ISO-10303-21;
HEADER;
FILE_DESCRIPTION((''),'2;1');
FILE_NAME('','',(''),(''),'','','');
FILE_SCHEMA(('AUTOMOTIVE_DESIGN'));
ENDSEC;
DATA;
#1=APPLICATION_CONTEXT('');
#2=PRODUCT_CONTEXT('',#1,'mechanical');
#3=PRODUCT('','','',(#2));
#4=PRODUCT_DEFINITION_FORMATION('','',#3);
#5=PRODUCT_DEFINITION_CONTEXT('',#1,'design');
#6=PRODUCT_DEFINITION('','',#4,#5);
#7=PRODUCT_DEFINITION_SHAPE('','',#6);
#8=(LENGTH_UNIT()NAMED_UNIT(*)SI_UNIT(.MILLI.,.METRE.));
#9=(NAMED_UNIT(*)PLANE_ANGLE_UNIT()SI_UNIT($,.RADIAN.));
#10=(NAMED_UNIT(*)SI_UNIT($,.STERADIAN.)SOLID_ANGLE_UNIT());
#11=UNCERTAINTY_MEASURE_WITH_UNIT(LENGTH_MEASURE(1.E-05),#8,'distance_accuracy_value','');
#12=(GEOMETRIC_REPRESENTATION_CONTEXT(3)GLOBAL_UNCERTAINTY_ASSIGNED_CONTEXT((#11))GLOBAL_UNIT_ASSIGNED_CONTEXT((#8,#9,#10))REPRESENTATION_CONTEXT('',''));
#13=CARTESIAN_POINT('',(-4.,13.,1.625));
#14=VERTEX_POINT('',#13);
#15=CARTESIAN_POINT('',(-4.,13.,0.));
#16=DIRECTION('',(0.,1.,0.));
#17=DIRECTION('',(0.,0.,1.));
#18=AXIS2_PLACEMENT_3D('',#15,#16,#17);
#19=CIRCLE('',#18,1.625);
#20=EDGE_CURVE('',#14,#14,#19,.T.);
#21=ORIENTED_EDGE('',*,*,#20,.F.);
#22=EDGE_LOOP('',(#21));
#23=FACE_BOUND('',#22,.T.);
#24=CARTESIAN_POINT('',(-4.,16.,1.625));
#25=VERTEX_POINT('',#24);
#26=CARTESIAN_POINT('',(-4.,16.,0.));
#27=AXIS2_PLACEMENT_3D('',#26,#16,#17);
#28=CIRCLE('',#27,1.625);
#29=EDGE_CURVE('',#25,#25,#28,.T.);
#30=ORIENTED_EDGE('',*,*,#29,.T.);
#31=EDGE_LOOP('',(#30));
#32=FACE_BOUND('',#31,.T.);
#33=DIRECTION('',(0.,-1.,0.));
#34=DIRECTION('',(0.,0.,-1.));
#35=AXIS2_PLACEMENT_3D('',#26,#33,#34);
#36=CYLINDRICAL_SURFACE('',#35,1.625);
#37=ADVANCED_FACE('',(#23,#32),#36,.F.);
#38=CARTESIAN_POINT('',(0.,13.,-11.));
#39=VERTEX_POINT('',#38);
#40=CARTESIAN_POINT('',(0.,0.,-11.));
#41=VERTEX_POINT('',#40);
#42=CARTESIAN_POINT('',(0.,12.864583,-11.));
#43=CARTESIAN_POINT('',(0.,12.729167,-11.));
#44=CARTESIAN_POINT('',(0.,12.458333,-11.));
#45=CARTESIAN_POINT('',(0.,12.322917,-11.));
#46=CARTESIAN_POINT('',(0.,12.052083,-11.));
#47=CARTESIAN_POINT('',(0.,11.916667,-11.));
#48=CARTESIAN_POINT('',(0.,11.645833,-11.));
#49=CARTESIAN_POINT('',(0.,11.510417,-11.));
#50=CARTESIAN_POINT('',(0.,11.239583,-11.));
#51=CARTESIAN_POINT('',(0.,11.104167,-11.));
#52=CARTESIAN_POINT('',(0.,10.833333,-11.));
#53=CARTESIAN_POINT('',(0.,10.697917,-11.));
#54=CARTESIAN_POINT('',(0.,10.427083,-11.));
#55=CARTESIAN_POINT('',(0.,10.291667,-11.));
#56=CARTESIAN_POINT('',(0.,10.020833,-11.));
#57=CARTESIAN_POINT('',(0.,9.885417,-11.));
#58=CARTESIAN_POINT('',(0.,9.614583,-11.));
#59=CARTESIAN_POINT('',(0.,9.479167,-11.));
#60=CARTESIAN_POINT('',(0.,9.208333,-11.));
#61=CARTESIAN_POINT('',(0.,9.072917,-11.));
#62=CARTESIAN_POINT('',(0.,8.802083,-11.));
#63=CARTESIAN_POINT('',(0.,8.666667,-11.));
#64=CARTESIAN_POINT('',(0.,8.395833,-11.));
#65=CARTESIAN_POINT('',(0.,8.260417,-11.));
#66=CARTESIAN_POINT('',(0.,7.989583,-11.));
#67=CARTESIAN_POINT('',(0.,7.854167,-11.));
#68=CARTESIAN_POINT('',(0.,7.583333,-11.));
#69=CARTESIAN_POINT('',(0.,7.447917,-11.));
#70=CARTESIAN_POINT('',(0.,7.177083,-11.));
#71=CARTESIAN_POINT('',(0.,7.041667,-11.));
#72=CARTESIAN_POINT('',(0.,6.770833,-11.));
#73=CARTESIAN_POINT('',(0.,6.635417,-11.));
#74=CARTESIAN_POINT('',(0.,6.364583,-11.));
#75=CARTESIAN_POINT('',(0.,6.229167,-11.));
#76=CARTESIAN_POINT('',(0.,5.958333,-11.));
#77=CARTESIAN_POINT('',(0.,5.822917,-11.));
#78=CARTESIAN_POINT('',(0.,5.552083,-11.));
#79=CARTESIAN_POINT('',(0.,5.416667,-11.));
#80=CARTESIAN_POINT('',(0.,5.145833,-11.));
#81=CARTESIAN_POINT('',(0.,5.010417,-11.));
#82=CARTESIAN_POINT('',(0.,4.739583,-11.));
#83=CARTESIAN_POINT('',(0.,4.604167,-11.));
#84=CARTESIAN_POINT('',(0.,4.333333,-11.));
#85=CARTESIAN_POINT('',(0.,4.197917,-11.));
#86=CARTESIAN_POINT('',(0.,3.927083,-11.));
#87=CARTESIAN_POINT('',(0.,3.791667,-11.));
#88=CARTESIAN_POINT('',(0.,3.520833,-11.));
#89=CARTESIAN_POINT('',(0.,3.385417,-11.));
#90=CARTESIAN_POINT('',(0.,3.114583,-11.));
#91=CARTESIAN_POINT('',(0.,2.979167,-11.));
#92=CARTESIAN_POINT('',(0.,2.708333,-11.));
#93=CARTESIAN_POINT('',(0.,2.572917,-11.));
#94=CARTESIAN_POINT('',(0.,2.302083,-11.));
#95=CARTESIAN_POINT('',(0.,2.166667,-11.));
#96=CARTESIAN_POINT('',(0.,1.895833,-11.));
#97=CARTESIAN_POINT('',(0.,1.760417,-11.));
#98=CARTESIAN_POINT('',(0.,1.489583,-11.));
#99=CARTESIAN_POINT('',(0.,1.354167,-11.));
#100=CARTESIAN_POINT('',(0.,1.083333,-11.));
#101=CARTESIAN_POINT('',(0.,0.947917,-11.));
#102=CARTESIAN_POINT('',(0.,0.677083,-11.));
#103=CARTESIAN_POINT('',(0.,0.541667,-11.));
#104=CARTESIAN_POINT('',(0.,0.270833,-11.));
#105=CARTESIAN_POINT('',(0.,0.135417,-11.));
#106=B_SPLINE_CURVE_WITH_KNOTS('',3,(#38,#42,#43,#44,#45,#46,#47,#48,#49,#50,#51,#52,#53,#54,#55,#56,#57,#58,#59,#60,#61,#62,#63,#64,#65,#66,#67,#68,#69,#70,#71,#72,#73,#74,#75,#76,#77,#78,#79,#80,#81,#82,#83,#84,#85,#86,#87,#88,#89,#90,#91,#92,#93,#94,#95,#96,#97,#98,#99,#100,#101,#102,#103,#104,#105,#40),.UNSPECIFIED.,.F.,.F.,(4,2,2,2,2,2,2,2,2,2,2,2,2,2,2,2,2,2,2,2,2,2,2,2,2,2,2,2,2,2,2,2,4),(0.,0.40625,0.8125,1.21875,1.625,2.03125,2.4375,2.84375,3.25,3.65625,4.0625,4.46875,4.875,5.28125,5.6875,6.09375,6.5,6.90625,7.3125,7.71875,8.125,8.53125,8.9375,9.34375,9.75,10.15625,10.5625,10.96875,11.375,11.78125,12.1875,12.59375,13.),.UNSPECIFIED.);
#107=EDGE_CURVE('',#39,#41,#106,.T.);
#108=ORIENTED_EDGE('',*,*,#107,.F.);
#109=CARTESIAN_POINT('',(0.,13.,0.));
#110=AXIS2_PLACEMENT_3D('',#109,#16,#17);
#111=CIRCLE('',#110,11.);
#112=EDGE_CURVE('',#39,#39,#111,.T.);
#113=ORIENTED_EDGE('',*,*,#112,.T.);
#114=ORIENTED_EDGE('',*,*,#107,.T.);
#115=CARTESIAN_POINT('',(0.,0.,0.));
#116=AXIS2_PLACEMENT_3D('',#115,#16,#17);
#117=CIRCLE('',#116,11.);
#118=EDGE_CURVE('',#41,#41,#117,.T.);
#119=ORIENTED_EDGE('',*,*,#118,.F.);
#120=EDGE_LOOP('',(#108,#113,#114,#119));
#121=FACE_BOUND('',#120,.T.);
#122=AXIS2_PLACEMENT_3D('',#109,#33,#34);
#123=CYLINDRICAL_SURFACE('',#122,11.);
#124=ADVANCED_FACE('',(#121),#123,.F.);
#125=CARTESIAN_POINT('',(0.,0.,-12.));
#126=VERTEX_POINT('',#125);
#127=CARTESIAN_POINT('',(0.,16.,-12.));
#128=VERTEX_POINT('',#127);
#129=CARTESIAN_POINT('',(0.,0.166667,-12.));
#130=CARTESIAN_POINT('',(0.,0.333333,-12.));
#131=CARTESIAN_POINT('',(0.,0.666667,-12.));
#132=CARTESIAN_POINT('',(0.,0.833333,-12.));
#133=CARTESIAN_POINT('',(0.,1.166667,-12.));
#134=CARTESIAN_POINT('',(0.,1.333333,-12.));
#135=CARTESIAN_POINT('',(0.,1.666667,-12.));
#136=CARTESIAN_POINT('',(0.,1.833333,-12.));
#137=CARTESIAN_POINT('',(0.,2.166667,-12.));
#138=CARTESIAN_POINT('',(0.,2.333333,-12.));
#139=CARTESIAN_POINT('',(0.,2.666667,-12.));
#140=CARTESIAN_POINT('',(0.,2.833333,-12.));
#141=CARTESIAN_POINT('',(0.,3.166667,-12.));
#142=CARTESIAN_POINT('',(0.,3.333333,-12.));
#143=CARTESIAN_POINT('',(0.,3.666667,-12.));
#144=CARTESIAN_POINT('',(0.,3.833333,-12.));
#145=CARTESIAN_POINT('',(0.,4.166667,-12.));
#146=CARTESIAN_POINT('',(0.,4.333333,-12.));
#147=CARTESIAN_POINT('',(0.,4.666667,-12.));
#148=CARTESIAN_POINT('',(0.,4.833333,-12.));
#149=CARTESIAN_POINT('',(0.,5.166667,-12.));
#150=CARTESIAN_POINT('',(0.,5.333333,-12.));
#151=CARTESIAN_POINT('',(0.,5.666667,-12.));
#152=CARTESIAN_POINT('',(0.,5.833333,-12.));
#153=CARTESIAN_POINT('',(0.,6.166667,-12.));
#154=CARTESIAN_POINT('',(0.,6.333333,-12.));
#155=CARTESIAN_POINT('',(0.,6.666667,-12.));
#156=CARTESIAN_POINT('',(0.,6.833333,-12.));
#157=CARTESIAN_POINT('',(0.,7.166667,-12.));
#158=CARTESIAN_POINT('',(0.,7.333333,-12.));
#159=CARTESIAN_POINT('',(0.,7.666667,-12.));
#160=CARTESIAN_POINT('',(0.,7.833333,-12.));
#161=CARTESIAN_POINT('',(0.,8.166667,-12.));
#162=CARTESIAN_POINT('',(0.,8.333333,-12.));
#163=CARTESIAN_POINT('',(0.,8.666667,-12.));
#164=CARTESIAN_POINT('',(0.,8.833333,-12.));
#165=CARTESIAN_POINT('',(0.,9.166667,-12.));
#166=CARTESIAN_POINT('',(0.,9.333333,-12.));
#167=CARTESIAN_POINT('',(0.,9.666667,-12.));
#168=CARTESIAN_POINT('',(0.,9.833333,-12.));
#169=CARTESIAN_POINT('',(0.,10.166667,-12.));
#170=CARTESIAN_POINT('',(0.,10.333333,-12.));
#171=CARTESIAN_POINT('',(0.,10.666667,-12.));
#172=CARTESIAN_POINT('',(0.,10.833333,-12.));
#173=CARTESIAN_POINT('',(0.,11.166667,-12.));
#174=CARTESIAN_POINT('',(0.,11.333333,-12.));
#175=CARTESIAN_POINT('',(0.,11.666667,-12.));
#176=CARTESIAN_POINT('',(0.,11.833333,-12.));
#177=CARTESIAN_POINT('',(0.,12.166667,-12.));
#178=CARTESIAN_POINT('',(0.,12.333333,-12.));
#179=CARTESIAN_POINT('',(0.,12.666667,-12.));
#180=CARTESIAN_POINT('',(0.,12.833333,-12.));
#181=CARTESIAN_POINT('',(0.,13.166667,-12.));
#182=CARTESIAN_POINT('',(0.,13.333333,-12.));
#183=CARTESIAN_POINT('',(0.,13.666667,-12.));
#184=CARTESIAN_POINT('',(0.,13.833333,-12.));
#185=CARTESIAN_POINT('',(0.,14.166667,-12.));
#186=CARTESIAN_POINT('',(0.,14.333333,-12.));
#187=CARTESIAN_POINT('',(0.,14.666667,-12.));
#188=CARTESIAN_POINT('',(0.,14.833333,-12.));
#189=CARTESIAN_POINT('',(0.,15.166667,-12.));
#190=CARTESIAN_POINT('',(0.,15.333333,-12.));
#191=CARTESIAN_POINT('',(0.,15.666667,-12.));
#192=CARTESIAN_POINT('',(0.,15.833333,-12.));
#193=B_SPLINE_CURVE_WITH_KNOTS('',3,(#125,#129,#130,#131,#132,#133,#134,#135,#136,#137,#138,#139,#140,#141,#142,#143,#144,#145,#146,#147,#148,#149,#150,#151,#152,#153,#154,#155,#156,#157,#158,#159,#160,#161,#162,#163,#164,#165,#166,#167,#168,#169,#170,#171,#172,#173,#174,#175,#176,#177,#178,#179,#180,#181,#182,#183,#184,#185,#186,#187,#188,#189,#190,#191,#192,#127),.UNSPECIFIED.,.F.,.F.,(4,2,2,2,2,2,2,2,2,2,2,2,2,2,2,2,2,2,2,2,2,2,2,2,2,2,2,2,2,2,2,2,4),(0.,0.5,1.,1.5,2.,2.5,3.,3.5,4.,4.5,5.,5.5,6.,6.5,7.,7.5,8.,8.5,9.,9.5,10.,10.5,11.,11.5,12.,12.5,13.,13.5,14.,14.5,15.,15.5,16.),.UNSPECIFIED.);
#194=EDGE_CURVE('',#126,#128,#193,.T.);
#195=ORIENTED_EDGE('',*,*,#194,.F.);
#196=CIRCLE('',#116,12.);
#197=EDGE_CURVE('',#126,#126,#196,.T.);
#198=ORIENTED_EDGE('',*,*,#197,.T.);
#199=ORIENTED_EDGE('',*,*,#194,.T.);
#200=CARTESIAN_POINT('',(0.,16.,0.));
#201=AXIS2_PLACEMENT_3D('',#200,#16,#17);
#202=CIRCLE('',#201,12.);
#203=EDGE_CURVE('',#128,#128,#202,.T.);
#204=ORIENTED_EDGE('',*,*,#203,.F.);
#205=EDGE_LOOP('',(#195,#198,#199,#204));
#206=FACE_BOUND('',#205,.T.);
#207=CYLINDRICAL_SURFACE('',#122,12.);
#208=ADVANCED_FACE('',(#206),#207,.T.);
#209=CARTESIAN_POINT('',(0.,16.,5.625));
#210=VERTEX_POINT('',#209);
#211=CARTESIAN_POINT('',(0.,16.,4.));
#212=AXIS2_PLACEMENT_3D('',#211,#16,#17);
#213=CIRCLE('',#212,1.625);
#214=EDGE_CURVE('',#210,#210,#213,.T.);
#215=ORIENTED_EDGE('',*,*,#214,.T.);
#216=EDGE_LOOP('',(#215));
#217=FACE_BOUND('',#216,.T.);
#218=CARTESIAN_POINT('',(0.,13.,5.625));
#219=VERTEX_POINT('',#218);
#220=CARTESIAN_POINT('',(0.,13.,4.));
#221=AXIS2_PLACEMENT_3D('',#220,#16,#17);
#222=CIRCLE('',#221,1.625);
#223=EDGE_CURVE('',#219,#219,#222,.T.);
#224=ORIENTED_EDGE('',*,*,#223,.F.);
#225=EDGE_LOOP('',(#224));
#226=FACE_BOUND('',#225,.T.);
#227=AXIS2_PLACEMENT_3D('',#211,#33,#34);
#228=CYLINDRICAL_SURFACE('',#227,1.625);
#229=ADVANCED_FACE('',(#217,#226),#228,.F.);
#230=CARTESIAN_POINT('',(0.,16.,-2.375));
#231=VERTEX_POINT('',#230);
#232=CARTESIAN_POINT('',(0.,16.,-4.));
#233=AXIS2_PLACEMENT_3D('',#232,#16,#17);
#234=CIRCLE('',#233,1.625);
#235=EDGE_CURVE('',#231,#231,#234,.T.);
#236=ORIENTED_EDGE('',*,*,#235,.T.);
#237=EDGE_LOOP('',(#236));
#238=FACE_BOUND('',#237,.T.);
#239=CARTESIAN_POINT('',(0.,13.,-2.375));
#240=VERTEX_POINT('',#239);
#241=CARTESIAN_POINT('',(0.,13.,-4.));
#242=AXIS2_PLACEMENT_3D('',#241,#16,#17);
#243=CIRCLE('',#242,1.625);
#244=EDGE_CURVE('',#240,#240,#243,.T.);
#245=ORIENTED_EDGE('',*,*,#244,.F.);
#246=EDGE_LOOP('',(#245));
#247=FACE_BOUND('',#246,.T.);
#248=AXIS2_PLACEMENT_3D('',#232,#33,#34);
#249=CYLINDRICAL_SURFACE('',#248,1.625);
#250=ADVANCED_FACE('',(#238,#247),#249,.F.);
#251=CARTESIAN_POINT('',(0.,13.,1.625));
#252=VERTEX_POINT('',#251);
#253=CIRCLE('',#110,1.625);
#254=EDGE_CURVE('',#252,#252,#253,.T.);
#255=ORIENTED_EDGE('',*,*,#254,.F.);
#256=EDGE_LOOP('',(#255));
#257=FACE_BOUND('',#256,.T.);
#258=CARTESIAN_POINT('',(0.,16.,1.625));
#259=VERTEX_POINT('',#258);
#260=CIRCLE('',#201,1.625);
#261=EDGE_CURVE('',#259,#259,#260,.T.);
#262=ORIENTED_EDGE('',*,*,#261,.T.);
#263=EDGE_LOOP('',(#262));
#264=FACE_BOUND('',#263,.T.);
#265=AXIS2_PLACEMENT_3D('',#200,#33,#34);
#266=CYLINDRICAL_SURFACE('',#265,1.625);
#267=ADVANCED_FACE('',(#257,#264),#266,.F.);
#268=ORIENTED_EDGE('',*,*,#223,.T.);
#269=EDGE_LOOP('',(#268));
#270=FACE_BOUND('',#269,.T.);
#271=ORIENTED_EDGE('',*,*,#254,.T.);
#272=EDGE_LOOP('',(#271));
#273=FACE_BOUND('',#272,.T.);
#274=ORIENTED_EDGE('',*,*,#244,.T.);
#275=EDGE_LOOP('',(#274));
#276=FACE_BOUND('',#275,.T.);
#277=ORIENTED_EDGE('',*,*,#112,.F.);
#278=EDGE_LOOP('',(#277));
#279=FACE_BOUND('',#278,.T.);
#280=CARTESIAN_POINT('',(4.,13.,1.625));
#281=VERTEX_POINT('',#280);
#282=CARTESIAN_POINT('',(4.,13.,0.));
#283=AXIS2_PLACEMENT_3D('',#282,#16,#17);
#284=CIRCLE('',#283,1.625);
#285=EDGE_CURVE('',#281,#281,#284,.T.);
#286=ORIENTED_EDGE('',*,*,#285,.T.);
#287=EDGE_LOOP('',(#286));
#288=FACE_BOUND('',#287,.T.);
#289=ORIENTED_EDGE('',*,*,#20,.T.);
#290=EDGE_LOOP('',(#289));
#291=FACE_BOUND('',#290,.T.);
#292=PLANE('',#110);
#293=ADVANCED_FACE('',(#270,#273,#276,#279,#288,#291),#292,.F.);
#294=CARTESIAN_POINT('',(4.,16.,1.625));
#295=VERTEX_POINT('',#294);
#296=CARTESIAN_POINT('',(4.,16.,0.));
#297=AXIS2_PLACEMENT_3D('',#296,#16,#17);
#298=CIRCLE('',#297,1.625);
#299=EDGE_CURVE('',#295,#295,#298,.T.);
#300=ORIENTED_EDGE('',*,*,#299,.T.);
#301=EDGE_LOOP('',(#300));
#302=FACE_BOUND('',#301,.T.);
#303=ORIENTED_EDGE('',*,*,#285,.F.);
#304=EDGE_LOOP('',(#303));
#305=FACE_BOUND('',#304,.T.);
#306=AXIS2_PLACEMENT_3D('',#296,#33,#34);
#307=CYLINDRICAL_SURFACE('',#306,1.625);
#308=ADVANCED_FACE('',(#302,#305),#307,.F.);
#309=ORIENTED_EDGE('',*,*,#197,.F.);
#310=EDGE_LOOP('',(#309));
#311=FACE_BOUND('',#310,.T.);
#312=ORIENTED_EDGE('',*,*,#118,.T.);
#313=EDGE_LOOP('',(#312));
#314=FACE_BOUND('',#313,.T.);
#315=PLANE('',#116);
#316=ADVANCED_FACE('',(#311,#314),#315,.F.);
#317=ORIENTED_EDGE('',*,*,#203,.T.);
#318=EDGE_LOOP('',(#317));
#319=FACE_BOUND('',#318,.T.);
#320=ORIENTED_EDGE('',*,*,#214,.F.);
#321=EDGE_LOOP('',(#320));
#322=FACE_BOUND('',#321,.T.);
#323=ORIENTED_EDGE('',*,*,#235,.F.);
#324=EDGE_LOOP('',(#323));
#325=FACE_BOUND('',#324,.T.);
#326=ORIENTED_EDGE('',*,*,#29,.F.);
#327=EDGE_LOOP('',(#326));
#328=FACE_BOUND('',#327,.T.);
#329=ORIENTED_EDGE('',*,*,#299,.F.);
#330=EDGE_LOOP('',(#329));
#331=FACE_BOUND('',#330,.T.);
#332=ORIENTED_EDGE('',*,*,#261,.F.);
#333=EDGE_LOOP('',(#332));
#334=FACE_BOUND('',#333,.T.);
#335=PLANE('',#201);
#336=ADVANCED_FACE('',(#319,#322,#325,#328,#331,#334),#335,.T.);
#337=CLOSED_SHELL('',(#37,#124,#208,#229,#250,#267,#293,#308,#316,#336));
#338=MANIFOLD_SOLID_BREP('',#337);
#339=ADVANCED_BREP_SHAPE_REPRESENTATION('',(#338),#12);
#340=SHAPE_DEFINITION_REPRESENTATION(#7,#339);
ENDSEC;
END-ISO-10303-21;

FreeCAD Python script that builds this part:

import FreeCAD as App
import Part
import Sketcher

V = App.Vector

doc = App.newDocument("Part")
body = doc.addObject("PartDesign::Body", "Body")

# Sketch on XZ plane
sketch1 = body.newObject("Sketcher::SketchObject", "Sketch")
sketch1.AttachmentSupport = (doc.getObject("XZ_Plane"), [""])
sketch1.MapMode = "FlatFace"
sketch1.addGeometry([
    Part.Circle(V(0, 0, 0), V(0, 0, 1), 12),
    Part.Circle(V(0, 0, 0), V(0, 0, 1), 11),
], False)
sketch1.addConstraint([
    Sketcher.Constraint("Coincident", 0, 3, -1, 1),
    Sketcher.Constraint("Coincident", 1, 3, -1, 1),
    Sketcher.Constraint("Diameter", 0, 24.0),
    Sketcher.Constraint("Diameter", 1, 22.0),
])
pad1 = body.newObject("PartDesign::Pad", "Pad")
pad1.Profile = sketch1
pad1.Length = 13
pad1.Reversed = True

# Sketch on XZ plane
sketch2 = body.newObject("Sketcher::SketchObject", "Sketch001")
sketch2.AttachmentSupport = (doc.getObject("XZ_Plane"), [""])
sketch2.MapMode = "FlatFace"
sketch2.AttachmentOffset = App.Placement(V(0, 0, -13), App.Rotation())
sketch2.addGeometry([
    Part.Circle(V(0, 0, 0), V(0, 0, 1), 12),  # 0
    Part.Circle(V(0, 4, 0), V(0, 0, 1), 1.6),  # 1
    Part.Circle(V(4, 0, 0), V(0, 0, 1), 1.6),  # 2
    Part.Circle(V(-4, 0, 0), V(0, 0, 1), 1.6),  # 3
    Part.Circle(V(0, 0, 0), V(0, 0, 1), 1.6),  # 4
    Part.Circle(V(0, -4, 0), V(0, 0, 1), 1.6),  # 5
], False)
sketch2.addConstraint([
    Sketcher.Constraint("Coincident", 0, 3, -1, 1),
    Sketcher.Constraint("Coincident", 4, 3, -1, 1),
    Sketcher.Constraint("Equal", 1, 2),
    Sketcher.Constraint("Equal", 2, 3),
    Sketcher.Constraint("Equal", 3, 4),
    Sketcher.Constraint("Equal", 4, 5),
    Sketcher.Constraint("Symmetric", 2, 3, 3, 3, -1, 1),
    Sketcher.Constraint("Symmetric", 1, 3, 5, 3, -1, 1),
    Sketcher.Constraint("PointOnObject", 1, 3, -2),
    Sketcher.Constraint("PointOnObject", 2, 3, -1),
    Sketcher.Constraint("Diameter", 0, 24.0),
    Sketcher.Constraint("Diameter", 1, 3.25),
    Sketcher.Constraint("DistanceY", -1, 1, 1, 3, 4.0),
    Sketcher.Constraint("DistanceX", -1, 1, 2, 3, 4.0),
])
pad2 = body.newObject("PartDesign::Pad", "Pad001")
pad2.Profile = sketch2
pad2.Length = 3
pad2.Reversed = True

doc.recompute()
